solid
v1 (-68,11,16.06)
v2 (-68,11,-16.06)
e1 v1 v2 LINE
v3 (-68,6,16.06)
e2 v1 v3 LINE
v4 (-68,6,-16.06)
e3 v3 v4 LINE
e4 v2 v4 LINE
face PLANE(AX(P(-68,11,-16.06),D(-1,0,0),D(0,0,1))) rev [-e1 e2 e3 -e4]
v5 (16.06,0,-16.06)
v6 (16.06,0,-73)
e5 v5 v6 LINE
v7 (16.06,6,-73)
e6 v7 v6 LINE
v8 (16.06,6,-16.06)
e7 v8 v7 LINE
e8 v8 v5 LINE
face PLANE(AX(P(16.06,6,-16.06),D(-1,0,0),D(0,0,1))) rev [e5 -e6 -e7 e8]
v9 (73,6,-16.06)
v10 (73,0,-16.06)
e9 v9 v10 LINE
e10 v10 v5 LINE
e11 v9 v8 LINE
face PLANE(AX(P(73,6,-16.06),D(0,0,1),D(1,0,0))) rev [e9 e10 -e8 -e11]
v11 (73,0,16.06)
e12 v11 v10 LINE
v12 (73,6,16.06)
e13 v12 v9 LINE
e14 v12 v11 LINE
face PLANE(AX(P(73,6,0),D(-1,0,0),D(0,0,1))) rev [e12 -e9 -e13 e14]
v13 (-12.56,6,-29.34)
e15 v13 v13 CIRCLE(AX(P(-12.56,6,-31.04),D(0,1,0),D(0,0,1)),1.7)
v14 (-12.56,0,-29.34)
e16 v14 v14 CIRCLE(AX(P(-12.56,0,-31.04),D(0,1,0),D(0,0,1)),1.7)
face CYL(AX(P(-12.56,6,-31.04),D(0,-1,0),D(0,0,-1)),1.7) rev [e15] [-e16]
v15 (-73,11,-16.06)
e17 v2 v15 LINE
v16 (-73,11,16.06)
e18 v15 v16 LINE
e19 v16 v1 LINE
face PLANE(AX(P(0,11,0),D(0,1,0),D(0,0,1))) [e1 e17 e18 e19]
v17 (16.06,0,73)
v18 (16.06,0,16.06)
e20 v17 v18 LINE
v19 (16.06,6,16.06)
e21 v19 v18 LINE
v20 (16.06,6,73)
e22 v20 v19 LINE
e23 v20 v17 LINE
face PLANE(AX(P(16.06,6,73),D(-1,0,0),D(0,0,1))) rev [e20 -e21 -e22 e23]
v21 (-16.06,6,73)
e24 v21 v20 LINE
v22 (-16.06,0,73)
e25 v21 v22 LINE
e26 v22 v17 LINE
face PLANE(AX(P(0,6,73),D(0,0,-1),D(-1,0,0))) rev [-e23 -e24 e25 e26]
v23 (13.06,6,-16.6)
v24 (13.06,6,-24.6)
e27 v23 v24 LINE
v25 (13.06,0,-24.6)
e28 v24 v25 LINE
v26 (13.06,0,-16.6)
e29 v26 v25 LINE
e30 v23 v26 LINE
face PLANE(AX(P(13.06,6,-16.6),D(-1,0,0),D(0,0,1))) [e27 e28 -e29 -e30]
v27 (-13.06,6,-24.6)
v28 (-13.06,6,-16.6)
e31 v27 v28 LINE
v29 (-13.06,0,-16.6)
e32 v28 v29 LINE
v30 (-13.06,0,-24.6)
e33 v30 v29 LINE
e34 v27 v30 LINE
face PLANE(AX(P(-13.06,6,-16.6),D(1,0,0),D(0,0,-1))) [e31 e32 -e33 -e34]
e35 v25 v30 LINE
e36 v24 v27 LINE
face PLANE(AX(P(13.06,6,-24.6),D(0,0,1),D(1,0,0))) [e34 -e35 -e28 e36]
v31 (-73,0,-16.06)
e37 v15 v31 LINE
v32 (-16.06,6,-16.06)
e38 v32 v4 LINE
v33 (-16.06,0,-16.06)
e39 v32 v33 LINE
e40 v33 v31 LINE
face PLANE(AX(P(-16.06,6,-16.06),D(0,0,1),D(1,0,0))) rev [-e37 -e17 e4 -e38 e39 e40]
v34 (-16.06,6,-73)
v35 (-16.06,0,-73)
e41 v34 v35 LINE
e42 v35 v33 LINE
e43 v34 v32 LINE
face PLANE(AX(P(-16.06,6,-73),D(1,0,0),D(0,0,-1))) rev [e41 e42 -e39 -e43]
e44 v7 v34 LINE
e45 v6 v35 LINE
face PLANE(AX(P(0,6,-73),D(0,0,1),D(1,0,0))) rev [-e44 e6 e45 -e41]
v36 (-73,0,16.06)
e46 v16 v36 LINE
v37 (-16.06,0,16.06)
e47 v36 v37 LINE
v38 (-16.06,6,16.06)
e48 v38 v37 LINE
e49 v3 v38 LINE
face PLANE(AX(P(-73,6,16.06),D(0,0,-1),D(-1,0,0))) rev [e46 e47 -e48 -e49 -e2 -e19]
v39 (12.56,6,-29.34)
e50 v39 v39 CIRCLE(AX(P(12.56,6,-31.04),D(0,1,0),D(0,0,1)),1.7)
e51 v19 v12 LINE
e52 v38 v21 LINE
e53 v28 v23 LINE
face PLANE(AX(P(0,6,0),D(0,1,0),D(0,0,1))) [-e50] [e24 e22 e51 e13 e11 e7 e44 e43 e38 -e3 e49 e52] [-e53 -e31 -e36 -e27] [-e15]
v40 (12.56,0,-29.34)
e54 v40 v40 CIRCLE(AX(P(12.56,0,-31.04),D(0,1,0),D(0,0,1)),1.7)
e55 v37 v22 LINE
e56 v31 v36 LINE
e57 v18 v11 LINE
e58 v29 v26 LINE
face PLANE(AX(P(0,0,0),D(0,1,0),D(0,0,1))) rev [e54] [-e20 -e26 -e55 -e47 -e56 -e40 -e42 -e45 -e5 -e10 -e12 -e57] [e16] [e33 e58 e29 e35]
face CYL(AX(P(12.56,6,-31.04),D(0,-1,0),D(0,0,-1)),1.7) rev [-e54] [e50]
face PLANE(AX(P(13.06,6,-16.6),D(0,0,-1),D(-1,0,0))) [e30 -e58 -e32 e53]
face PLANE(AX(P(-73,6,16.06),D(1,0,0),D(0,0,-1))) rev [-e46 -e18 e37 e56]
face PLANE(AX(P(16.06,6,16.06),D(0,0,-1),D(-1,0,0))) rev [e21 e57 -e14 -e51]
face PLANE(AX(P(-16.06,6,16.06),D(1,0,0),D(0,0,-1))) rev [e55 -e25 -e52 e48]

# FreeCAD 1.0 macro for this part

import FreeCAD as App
import Part
import Sketcher
Q = App.Units.Quantity

doc = App.newDocument("Part")
body = doc.addObject("PartDesign::Body", "Body")

sketch1 = body.newObject("Sketcher::SketchObject", "Sketch")
sketch1.AttachmentSupport = (doc.getObject("XZ_Plane"), [""])
sketch1.MapMode = "FlatFace"
sketch1.addGeometry([
    Part.LineSegment(App.Vector(-16.1, -73, 0), App.Vector(-16.1, -16.1, 0)),
    Part.LineSegment(App.Vector(-16.1, -16.1, 0), App.Vector(-73, -16.1, 0)),
    Part.LineSegment(App.Vector(-73, -16.1, 0), App.Vector(-73, 16.1, 0)),
    Part.LineSegment(App.Vector(-73, 16.1, 0), App.Vector(-16.1, 16.1, 0)),
    Part.LineSegment(App.Vector(-16.1, 16.1, 0), App.Vector(-16.1, 73, 0)),
    Part.LineSegment(App.Vector(-16.1, 73, 0), App.Vector(16.1, 73, 0)),
    Part.LineSegment(App.Vector(16.1, 73, 0), App.Vector(16.1, 16.1, 0)),
    Part.LineSegment(App.Vector(16.1, 16.1, 0), App.Vector(73, 16.1, 0)),
    Part.LineSegment(App.Vector(73, 16.1, 0), App.Vector(73, -16.1, 0)),
    Part.LineSegment(App.Vector(73, -16.1, 0), App.Vector(16.1, -16.1, 0)),
    Part.LineSegment(App.Vector(16.1, -16.1, 0), App.Vector(16.1, -73, 0)),
    Part.LineSegment(App.Vector(16.1, -73, 0), App.Vector(-16.1, -73, 0)),
    Part.LineSegment(App.Vector(13.1, -16.6, 0), App.Vector(-13.1, -16.6, 0)),
    Part.LineSegment(App.Vector(-13.1, -16.6, 0), App.Vector(-13.1, -24.6, 0)),
    Part.LineSegment(App.Vector(-13.1, -24.6, 0), App.Vector(13.1, -24.6, 0)),
    Part.LineSegment(App.Vector(13.1, -24.6, 0), App.Vector(13.1, -16.6, 0)),
    Part.Circle(App.Vector(-12.6, -31, 0), App.Vector(0, 0, 1), 1.7),
    Part.Circle(App.Vector(12.6, -31, 0), App.Vector(0, 0, 1), 1.7),
], False)
sketch1.addConstraint([
    Sketcher.Constraint("Coincident", 0, 2, 1, 1),
    Sketcher.Constraint("Coincident", 1, 2, 2, 1),
    Sketcher.Constraint("Coincident", 2, 2, 3, 1),
    Sketcher.Constraint("Coincident", 3, 2, 4, 1),
    Sketcher.Constraint("Coincident", 4, 2, 5, 1),
    Sketcher.Constraint("Coincident", 5, 2, 6, 1),
    Sketcher.Constraint("Coincident", 6, 2, 7, 1),
    Sketcher.Constraint("Coincident", 7, 2, 8, 1),
    Sketcher.Constraint("Coincident", 8, 2, 9, 1),
    Sketcher.Constraint("Coincident", 9, 2, 10, 1),
    Sketcher.Constraint("Coincident", 10, 2, 11, 1),
    Sketcher.Constraint("Coincident", 11, 2, 0, 1),
    Sketcher.Constraint("Coincident", 12, 2, 13, 1),
    Sketcher.Constraint("Coincident", 13, 2, 14, 1),
    Sketcher.Constraint("Coincident", 14, 2, 15, 1),
    Sketcher.Constraint("Coincident", 15, 2, 12, 1),
    Sketcher.Constraint("Vertical", 0),
    Sketcher.Constraint("Horizontal", 1),
    Sketcher.Constraint("Vertical", 2),
    Sketcher.Constraint("Horizontal", 3),
    Sketcher.Constraint("Vertical", 4),
    Sketcher.Constraint("Horizontal", 5),
    Sketcher.Constraint("Vertical", 6),
    Sketcher.Constraint("Horizontal", 7),
    Sketcher.Constraint("Vertical", 8),
    Sketcher.Constraint("Horizontal", 9),
    Sketcher.Constraint("Vertical", 10),
    Sketcher.Constraint("Horizontal", 11),
    Sketcher.Constraint("Horizontal", 12),
    Sketcher.Constraint("Vertical", 13),
    Sketcher.Constraint("Horizontal", 14),
    Sketcher.Constraint("Vertical", 15),
    Sketcher.Constraint("Equal", 16, 17),
    Sketcher.Constraint("Symmetric", 0, 2, 6, 2, -1, 1),
    Sketcher.Constraint("Symmetric", 2, 2, 8, 2, -1, 1),
    Sketcher.Constraint("Symmetric", 4, 2, 10, 2, -1, 1),
    Sketcher.Constraint("Symmetric", 16, 3, 17, 3, -2),
    Sketcher.Constraint("Symmetric", 3, 2, 6, 2, -2),
    Sketcher.Constraint("Equal", 9, 0),
    Sketcher.Constraint("Equal", 11, 2),
    Sketcher.Constraint("Diameter", 16, Q("3.4 mm")),
    Sketcher.Constraint("DistanceY", 13, 2, 13, 1, Q("8 mm")),
    Sketcher.Constraint("DistanceX", 1, 2, -1, 1, Q("73 mm")),
    Sketcher.Constraint("DistanceX", 0, 2, 12, 2, Q("3 mm")),
    Sketcher.Constraint("DistanceX", 14, 2, 9, 2, Q("3 mm")),
    Sketcher.Constraint("DistanceX", 1, 2, 1, 1, Q("56.94 mm")),
    Sketcher.Constraint("DistanceY", 12, 2, -1, 1, Q("16.6 mm")),
    Sketcher.Constraint("DistanceX", 0, 2, 16, 3, Q("3.5 mm")),
    Sketcher.Constraint("DistanceY", 16, 3, 2, 2, Q("47.1 mm")),
])
pad1 = body.newObject("PartDesign::Pad", "Pad")
pad1.Profile = sketch1
pad1.Length = 6
pad1.Reversed = True

sketch2 = body.newObject("Sketcher::SketchObject", "Sketch001")
sketch2.AttachmentSupport = (doc.getObject("XZ_Plane"), [""])
sketch2.MapMode = "FlatFace"
sketch2.AttachmentOffset = App.Placement(App.Vector(0, 0, -6), App.Rotation())
sketch2.addGeometry([
    Part.LineSegment(App.Vector(-73, -16, 0), App.Vector(-73, 16, 0)),
    Part.LineSegment(App.Vector(-73, 16, 0), App.Vector(-68, 16, 0)),
    Part.LineSegment(App.Vector(-68, 16, 0), App.Vector(-68, -16, 0)),
    Part.LineSegment(App.Vector(-68, -16, 0), App.Vector(-73, -16, 0)),
], False)
sketch2.addConstraint([
    Sketcher.Constraint("Coincident", 0, 2, 1, 1),
    Sketcher.Constraint("Coincident", 1, 2, 2, 1),
    Sketcher.Constraint("Coincident", 2, 2, 3, 1),
    Sketcher.Constraint("Coincident", 3, 2, 0, 1),
    Sketcher.Constraint("Vertical", 0),
    Sketcher.Constraint("Horizontal", 1),
    Sketcher.Constraint("Vertical", 2),
    Sketcher.Constraint("Horizontal", 3),
    Sketcher.Constraint("DistanceX", 1, 1, 1, 2, Q("5 mm")),
    Sketcher.Constraint("DistanceX", 0, 2, -1, 1, Q("73 mm")),
    Sketcher.Constraint("DistanceY", 0, 1, 0, 2, Q("32.12 mm")),
    Sketcher.Constraint("DistanceY", -1, 1, 0, 2, Q("16.06 mm")),
])
pad2 = body.newObject("PartDesign::Pad", "Pad001")
pad2.Profile = sketch2
pad2.Length = 5
pad2.Reversed = True

doc.recompute()
